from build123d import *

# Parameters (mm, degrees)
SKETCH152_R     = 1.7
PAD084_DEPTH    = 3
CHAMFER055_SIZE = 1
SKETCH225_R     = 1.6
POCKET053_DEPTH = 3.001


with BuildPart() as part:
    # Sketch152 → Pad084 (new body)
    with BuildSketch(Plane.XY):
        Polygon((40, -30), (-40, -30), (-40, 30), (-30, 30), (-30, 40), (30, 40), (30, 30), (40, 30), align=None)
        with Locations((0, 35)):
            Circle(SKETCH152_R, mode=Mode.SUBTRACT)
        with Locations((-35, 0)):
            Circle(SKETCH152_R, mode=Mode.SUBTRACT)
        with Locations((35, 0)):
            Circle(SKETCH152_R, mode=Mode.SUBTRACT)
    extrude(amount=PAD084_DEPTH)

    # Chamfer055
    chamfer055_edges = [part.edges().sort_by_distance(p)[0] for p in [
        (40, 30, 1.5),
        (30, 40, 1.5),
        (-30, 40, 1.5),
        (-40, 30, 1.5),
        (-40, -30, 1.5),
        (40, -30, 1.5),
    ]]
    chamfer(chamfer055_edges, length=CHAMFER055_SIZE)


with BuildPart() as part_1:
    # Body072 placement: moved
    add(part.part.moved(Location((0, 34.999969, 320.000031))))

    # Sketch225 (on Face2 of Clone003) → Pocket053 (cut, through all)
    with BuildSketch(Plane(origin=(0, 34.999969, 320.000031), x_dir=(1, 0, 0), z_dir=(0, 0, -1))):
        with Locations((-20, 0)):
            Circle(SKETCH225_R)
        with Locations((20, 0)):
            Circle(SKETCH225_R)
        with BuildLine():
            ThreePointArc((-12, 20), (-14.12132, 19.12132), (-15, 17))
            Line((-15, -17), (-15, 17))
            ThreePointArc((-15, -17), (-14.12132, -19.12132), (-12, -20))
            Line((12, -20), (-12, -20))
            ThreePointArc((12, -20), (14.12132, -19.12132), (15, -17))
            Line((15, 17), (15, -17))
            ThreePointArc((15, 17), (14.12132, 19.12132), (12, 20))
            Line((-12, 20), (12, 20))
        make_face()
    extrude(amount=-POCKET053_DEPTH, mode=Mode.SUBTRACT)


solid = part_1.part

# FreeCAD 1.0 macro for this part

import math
import FreeCAD as App
import Part
import Sketcher
Q = App.Units.Quantity


def edges_at(feature, points):
    """Names of the edges that pass closest to the given points."""
    edges = feature.Shape.Edges
    near = lambda p: min(range(len(edges)), key=lambda i: edges[i].distToShape(Part.Vertex(*p))[0])
    return sorted({f"Edge{near(p) + 1}" for p in points})

doc = App.newDocument("Part")
params = doc.addObject("Spreadsheet::Sheet", "Params")
for row, (alias, value) in enumerate([
    ("sketch1_diameter", "3.4 mm"),
    ("sketch1_width", "80 mm"),
    ("sketch1_width2", "10 mm"),
    ("pad1_length", "3 mm"),
    ("chamfer_size", "1 mm"),
    ("sketch2_radius", "3.000001 mm"),
    ("sketch2_diameter", "3.2 mm"),
    ("sketch2_width", "24 mm"),
    ("sketch2_height", "34 mm"),
], start=1):
    params.set(f"A{row}", alias)
    params.set(f"B{row}", "=" + value)
    params.setAlias(f"B{row}", alias)

body = doc.addObject("PartDesign::Body", "Body")

sketch1 = body.newObject("Sketcher::SketchObject", "Sketch")
sketch1.AttachmentSupport = (doc.getObject("XY_Plane"), [""])
sketch1.MapMode = "FlatFace"
sketch1.addGeometry([
    Part.LineSegment(App.Vector(-40, -30, 0), App.Vector(40, -30, 0)),
    Part.LineSegment(App.Vector(40, -30, 0), App.Vector(40, 30, 0)),
    Part.LineSegment(App.Vector(40, 30, 0), App.Vector(30, 30, 0)),
    Part.LineSegment(App.Vector(30, 30, 0), App.Vector(30, 40, 0)),
    Part.LineSegment(App.Vector(30, 40, 0), App.Vector(-30, 40, 0)),
    Part.LineSegment(App.Vector(-30, 40, 0), App.Vector(-30, 30, 0)),
    Part.LineSegment(App.Vector(-30, 30, 0), App.Vector(-40, 30, 0)),
    Part.LineSegment(App.Vector(-40, 30, 0), App.Vector(-40, -30, 0)),
    Part.Circle(App.Vector(35, 0, 0), App.Vector(0, 0, 1), 1.7),
    Part.Circle(App.Vector(-35, 0, 0), App.Vector(0, 0, 1), 1.7),
    Part.Circle(App.Vector(0, 35, 0), App.Vector(0, 0, 1), 1.7),
], False)
sketch1.addConstraint([
    Sketcher.Constraint("Coincident", 0, 2, 1, 1),
    Sketcher.Constraint("Coincident", 1, 2, 2, 1),
    Sketcher.Constraint("Coincident", 2, 2, 3, 1),
    Sketcher.Constraint("Coincident", 3, 2, 4, 1),
    Sketcher.Constraint("Coincident", 4, 2, 5, 1),
    Sketcher.Constraint("Coincident", 5, 2, 6, 1),
    Sketcher.Constraint("Coincident", 6, 2, 7, 1),
    Sketcher.Constraint("Coincident", 7, 2, 0, 1),
    Sketcher.Constraint("Horizontal", 0),
    Sketcher.Constraint("Vertical", 1),
    Sketcher.Constraint("Horizontal", 2),
    Sketcher.Constraint("Vertical", 3),
    Sketcher.Constraint("Horizontal", 4),
    Sketcher.Constraint("Vertical", 5),
    Sketcher.Constraint("Horizontal", 6),
    Sketcher.Constraint("Vertical", 7),
    Sketcher.Constraint("Equal", 8, 9),
    Sketcher.Constraint("Equal", 9, 10),
    Sketcher.Constraint("Symmetric", 8, 3, 9, 3, -1, 1),
    Sketcher.Constraint("Symmetric", 0, 2, 6, 2, -1, 1),
    Sketcher.Constraint("Symmetric", 2, 2, 5, 2, -2),
    Sketcher.Constraint("PointOnObject", 8, 3, -1),
    Sketcher.Constraint("PointOnObject", 10, 3, -2),
    Sketcher.Constraint("Equal", 4, 1),
    Sketcher.Constraint("Equal", 6, 3),
    Sketcher.Constraint("Diameter", 8, Q("3.4 mm")),
    Sketcher.Constraint("DistanceX", 0, 1, 0, 2, Q("80 mm")),
    Sketcher.Constraint("DistanceX", 2, 2, 2, 1, Q("10 mm")),
    Sketcher.Constraint("DistanceX", -1, 1, 8, 3, Q("35 mm")),
    Sketcher.Constraint("DistanceY", -1, 1, 10, 3, Q("35 mm")),
])
sketch1.setExpression("Constraints[25]", "Params.sketch1_diameter")
sketch1.setExpression("Constraints[26]", "Params.sketch1_width")
sketch1.setExpression("Constraints[27]", "Params.sketch1_width2")
pad1 = body.newObject("PartDesign::Pad", "Pad")
pad1.Profile = sketch1
pad1.setExpression("Length", "Params.pad1_length")
doc.recompute()

chamfer = body.newObject("PartDesign::Chamfer", "Chamfer")
chamfer.Base = (pad1, edges_at(pad1, [
    (40, 30, 1.5),
    (30, 40, 1.5),
    (-30, 40, 1.5),
    (-40, 30, 1.5),
    (-40, -30, 1.5),
    (40, -30, 1.5),
]))
chamfer.setExpression("Size", "Params.chamfer_size")
body2 = doc.addObject("PartDesign::Body", "Body001")
doc.recompute()

body.Placement = App.Placement(App.Vector(0, 34.999969, 320.000031), App.Rotation(App.Vector(0, 0, 1), 0))
boolean = body2.newObject("PartDesign::Boolean", "Boolean")
boolean.Type = "Fuse"
boolean.addObjects([body])

sketch2 = body2.newObject("Sketcher::SketchObject", "Sketch001")
sketch2.AttachmentSupport = (doc.getObject("XY_Plane001"), [""])
sketch2.MapMode = "FlatFace"
sketch2.AttachmentOffset = App.Placement(App.Vector(0, 0, 320.000031), App.Rotation())
sketch2.addGeometry([
    Part.Circle(App.Vector(-20, 35, 0), App.Vector(0, 0, 1), 1.6),
    Part.Circle(App.Vector(20, 35, 0), App.Vector(0, 0, 1), 1.6),
    Part.ArcOfCircle(Part.Circle(App.Vector(-12, 18, 0), App.Vector(0, 0, 1), 3), math.radians(-180), math.radians(-90)),
    Part.LineSegment(App.Vector(-15, 18, 0), App.Vector(-15, 52, 0)),
    Part.ArcOfCircle(Part.Circle(App.Vector(-12, 52, 0), App.Vector(0, 0, 1), 3), math.radians(90), math.radians(180)),
    Part.LineSegment(App.Vector(-12, 55, 0), App.Vector(12, 55, 0)),
    Part.ArcOfCircle(Part.Circle(App.Vector(12, 52, 0), App.Vector(0, 0, 1), 3), math.radians(0), math.radians(90)),
    Part.LineSegment(App.Vector(15, 52, 0), App.Vector(15, 18, 0)),
    Part.ArcOfCircle(Part.Circle(App.Vector(12, 18, 0), App.Vector(0, 0, 1), 3), math.radians(-90), math.radians(0)),
    Part.LineSegment(App.Vector(12, 15, 0), App.Vector(-12, 15, 0)),
], False)
sketch2.addConstraint([
    Sketcher.Constraint("Tangent", 2, 1, 3, 1),
    Sketcher.Constraint("Tangent", 3, 2, 4, 2),
    Sketcher.Constraint("Tangent", 4, 1, 5, 1),
    Sketcher.Constraint("Tangent", 5, 2, 6, 2),
    Sketcher.Constraint("Tangent", 6, 1, 7, 1),
    Sketcher.Constraint("Tangent", 7, 2, 8, 2),
    Sketcher.Constraint("Tangent", 8, 1, 9, 1),
    Sketcher.Constraint("Tangent", 9, 2, 2, 2),
    Sketcher.Constraint("Vertical", 3),
    Sketcher.Constraint("Horizontal", 5),
    Sketcher.Constraint("Vertical", 7),
    Sketcher.Constraint("Horizontal", 9),
    Sketcher.Constraint("Equal", 0, 1),
    Sketcher.Constraint("Equal", 2, 4),
    Sketcher.Constraint("Equal", 4, 6),
    Sketcher.Constraint("Equal", 6, 8),
    Sketcher.Constraint("Symmetric", 0, 3, 1, 3, -2),
    Sketcher.Constraint("Radius", 2, Q("3.000001 mm")),
    Sketcher.Constraint("Diameter", 0, Q("3.2 mm")),
    Sketcher.Constraint("DistanceX", 5, 1, 5, 2, Q("24 mm")),
    Sketcher.Constraint("DistanceY", 3, 1, 3, 2, Q("34 mm")),
    Sketcher.Constraint("DistanceX", 0, 3, -1, 1, Q("20 mm")),
    Sketcher.Constraint("DistanceX", 2, 3, -1, 1, Q("11.999999 mm")),
    Sketcher.Constraint("DistanceY", 2, 3, 0, 3, Q("16.999999 mm")),
    Sketcher.Constraint("DistanceY", -1, 1, 0, 3, Q("34.999969 mm")),
])
sketch2.setExpression("Constraints[17]", "Params.sketch2_radius")
sketch2.setExpression("Constraints[18]", "Params.sketch2_diameter")
sketch2.setExpression("Constraints[19]", "Params.sketch2_width")
sketch2.setExpression("Constraints[20]", "Params.sketch2_height")
pocket1 = body2.newObject("PartDesign::Pocket", "Pocket")
pocket1.Profile = sketch2
pocket1.Type = "ThroughAll"
pocket1.Reversed = True

doc.recompute()
